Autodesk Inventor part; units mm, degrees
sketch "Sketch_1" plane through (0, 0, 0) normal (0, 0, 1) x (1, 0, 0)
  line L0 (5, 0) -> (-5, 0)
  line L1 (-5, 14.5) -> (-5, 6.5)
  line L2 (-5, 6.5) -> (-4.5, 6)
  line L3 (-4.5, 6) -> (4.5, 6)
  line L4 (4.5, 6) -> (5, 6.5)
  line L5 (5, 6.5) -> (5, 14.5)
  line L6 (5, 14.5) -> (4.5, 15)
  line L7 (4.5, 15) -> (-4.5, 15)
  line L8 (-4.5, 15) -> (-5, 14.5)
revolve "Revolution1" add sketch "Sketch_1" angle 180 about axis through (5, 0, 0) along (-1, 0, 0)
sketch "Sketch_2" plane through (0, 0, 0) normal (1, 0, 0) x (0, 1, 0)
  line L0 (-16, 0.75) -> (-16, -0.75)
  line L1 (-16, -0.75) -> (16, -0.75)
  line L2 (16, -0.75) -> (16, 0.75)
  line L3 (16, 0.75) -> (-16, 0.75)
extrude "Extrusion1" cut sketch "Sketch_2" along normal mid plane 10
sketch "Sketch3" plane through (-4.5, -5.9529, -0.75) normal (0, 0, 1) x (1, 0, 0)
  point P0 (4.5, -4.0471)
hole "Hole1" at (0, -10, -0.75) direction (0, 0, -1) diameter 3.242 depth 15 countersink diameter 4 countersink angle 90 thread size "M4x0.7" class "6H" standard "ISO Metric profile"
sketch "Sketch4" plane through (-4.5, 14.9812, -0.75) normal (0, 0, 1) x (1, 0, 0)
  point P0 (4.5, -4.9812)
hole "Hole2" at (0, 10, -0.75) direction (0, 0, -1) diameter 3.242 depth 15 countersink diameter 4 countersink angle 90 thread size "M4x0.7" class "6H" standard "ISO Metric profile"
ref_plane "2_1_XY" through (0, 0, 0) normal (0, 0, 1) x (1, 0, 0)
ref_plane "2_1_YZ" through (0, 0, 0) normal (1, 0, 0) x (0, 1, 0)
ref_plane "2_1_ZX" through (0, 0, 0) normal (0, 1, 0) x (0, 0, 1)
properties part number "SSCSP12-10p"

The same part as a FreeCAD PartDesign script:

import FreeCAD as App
import Part
import Sketcher

V = App.Vector

doc = App.newDocument("Part")
body = doc.addObject("PartDesign::Body", "Body")

# Sketch on XY plane
sketch1 = body.newObject("Sketcher::SketchObject", "Sketch")
sketch1.AttachmentSupport = (doc.getObject("XY_Plane"), [""])
sketch1.MapMode = "FlatFace"
sketch1.addGeometry(Part.LineSegment(V(-4.5, 15, 0), V(-5, 14.5, 0)), False)
sketch1.addGeometry(Part.LineSegment(V(-5, 14.5, 0), V(-5, 6.5, 0)), False)
sketch1.addGeometry(Part.LineSegment(V(-5, 6.5, 0), V(-4.5, 6, 0)), False)
sketch1.addGeometry(Part.LineSegment(V(-4.5, 6, 0), V(4.5, 6, 0)), False)
sketch1.addGeometry(Part.LineSegment(V(4.5, 6, 0), V(5, 6.5, 0)), False)
sketch1.addGeometry(Part.LineSegment(V(5, 6.5, 0), V(5, 14.5, 0)), False)
sketch1.addGeometry(Part.LineSegment(V(5, 14.5, 0), V(4.5, 15, 0)), False)
sketch1.addGeometry(Part.LineSegment(V(4.5, 15, 0), V(-4.5, 15, 0)), False)
sketch1.addConstraint(Sketcher.Constraint("Coincident", 0, 2, 1, 1))
sketch1.addConstraint(Sketcher.Constraint("Coincident", 1, 2, 2, 1))
sketch1.addConstraint(Sketcher.Constraint("Coincident", 2, 2, 3, 1))
sketch1.addConstraint(Sketcher.Constraint("Coincident", 3, 2, 4, 1))
sketch1.addConstraint(Sketcher.Constraint("Coincident", 4, 2, 5, 1))
sketch1.addConstraint(Sketcher.Constraint("Coincident", 5, 2, 6, 1))
sketch1.addConstraint(Sketcher.Constraint("Coincident", 6, 2, 7, 1))
sketch1.addConstraint(Sketcher.Constraint("Coincident", 7, 2, 0, 1))
sketch1.addConstraint(Sketcher.Constraint("Vertical", 1))
sketch1.addConstraint(Sketcher.Constraint("Horizontal", 3))
sketch1.addConstraint(Sketcher.Constraint("Vertical", 5))
sketch1.addConstraint(Sketcher.Constraint("Horizontal", 7))
sketch1.addConstraint(Sketcher.Constraint("Symmetric", 1, 2, 4, 2, -2))
sketch1.addConstraint(Sketcher.Constraint("Perpendicular", 0, 2))
sketch1.addConstraint(Sketcher.Constraint("Perpendicular", 2, 4))
sketch1.addConstraint(Sketcher.Constraint("Perpendicular", 4, 6))
sketch1.addConstraint(Sketcher.Constraint("Horizontal", 0, 2, 5, 2))
sketch1.addConstraint(Sketcher.Constraint("Vertical", 3, 2, 6, 2))
sketch1.addConstraint(Sketcher.Constraint("Vertical", 2, 2, 7, 2))
sketch1.addConstraint(Sketcher.Constraint("DistanceX", 3, 1, 3, 2, 9.0))
sketch1.addConstraint(Sketcher.Constraint("DistanceY", 1, 2, 1, 1, 8.0))
sketch1.addConstraint(Sketcher.Constraint("DistanceX", 0, 2, -1, 1, 5.0))
sketch1.addConstraint(Sketcher.Constraint("DistanceY", -1, 1, 2, 2, 6.0))
revolution = body.newObject("PartDesign::Revolution", "Revolution")
revolution.Profile = sketch1
revolution.ReferenceAxis = (sketch1, ["H_Axis"])
revolution.Angle = 180
revolution.Reversed = True

# Sketch on YZ plane
sketch2 = body.newObject("Sketcher::SketchObject", "Sketch001")
sketch2.AttachmentSupport = (doc.getObject("YZ_Plane"), [""])
sketch2.MapMode = "FlatFace"
sketch2.addGeometry(Part.LineSegment(V(16, 0.8, 0), V(-16, 0.8, 0)), False)
sketch2.addGeometry(Part.LineSegment(V(-16, 0.8, 0), V(-16, -0.8, 0)), False)
sketch2.addGeometry(Part.LineSegment(V(-16, -0.8, 0), V(16, -0.8, 0)), False)
sketch2.addGeometry(Part.LineSegment(V(16, -0.8, 0), V(16, 0.8, 0)), False)
sketch2.addConstraint(Sketcher.Constraint("Coincident", 0, 2, 1, 1))
sketch2.addConstraint(Sketcher.Constraint("Coincident", 1, 2, 2, 1))
sketch2.addConstraint(Sketcher.Constraint("Coincident", 2, 2, 3, 1))
sketch2.addConstraint(Sketcher.Constraint("Coincident", 3, 2, 0, 1))
sketch2.addConstraint(Sketcher.Constraint("Horizontal", 0))
sketch2.addConstraint(Sketcher.Constraint("Vertical", 1))
sketch2.addConstraint(Sketcher.Constraint("Horizontal", 2))
sketch2.addConstraint(Sketcher.Constraint("Vertical", 3))
sketch2.addConstraint(Sketcher.Constraint("Symmetric", 0, 2, 2, 2, -1, 1))
sketch2.addConstraint(Sketcher.Constraint("DistanceX", 0, 2, 0, 1, 32.0))
sketch2.addConstraint(Sketcher.Constraint("DistanceY", 1, 2, 1, 1, 1.5))
pocket1 = body.newObject("PartDesign::Pocket", "Pocket")
pocket1.Profile = sketch2
pocket1.Length = 10
pocket1.Midplane = True

# Sketch on XY plane
sketch3 = body.newObject("Sketcher::SketchObject", "Sketch002")
sketch3.AttachmentSupport = (doc.getObject("XY_Plane"), [""])
sketch3.MapMode = "FlatFace"
sketch3.AttachmentOffset = App.Placement(V(0, 0, -0.75), App.Rotation())
sketch3.addGeometry(Part.Circle(V(0, -10, 0), V(0, 0, 1), 1.6), False)
sketch3.addConstraint(Sketcher.Constraint("PointOnObject", 0, 3, -2))
sketch3.addConstraint(Sketcher.Constraint("Diameter", 0, 3.242))
sketch3.addConstraint(Sketcher.Constraint("DistanceY", 0, 3, -1, 1, 10.0))
doc.recompute()
hole = body.newObject("PartDesign::Hole", "Hole")
hole.Profile = sketch3
hole.ThreadType = "None"
hole.Diameter = 3.242
hole.DepthType = "Dimension"
hole.Depth = 15
hole.DrillPoint = "Flat"
hole.HoleCutType = "Countersink"
hole.HoleCutDiameter = 4
hole.HoleCutCountersinkAngle = 90

# Sketch on XY plane
sketch4 = body.newObject("Sketcher::SketchObject", "Sketch003")
sketch4.AttachmentSupport = (doc.getObject("XY_Plane"), [""])
sketch4.MapMode = "FlatFace"
sketch4.AttachmentOffset = App.Placement(V(0, 0, -0.75), App.Rotation())
sketch4.addGeometry(Part.Circle(V(0, 10, 0), V(0, 0, 1), 1.6), False)
sketch4.addConstraint(Sketcher.Constraint("PointOnObject", 0, 3, -2))
sketch4.addConstraint(Sketcher.Constraint("Diameter", 0, 3.242))
sketch4.addConstraint(Sketcher.Constraint("DistanceY", -1, 1, 0, 3, 10.0))
doc.recompute()
hole2 = body.newObject("PartDesign::Hole", "Hole001")
hole2.Profile = sketch4
hole2.ThreadType = "None"
hole2.Diameter = 3.242
hole2.DepthType = "Dimension"
hole2.Depth = 15
hole2.DrillPoint = "Flat"
hole2.HoleCutType = "Countersink"
hole2.HoleCutDiameter = 4
hole2.HoleCutCountersinkAngle = 90

doc.recompute()
